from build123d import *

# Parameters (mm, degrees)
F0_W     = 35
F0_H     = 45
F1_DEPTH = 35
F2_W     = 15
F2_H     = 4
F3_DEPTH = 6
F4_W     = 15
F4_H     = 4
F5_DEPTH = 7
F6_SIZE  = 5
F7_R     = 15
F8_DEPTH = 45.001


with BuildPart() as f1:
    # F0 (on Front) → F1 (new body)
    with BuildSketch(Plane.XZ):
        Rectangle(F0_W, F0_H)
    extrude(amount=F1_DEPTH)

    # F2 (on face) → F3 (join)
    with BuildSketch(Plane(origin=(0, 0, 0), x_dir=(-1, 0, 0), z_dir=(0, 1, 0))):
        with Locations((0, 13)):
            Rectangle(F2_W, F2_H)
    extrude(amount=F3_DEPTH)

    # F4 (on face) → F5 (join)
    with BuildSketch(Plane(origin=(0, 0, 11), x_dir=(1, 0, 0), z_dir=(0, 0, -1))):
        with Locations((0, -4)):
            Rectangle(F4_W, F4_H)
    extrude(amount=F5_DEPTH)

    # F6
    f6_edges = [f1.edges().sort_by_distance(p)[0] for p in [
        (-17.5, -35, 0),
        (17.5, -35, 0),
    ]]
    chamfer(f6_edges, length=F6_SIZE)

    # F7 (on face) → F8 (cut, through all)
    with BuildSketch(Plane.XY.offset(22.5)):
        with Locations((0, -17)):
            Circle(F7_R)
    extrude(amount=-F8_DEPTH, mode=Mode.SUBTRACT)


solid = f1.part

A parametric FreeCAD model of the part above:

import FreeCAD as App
import Part
import Sketcher

V = App.Vector


def edges_at(feature, points):
    """Names of the edges that pass closest to the given points."""
    edges = feature.Shape.Edges
    near = lambda p: min(range(len(edges)), key=lambda i: edges[i].distToShape(Part.Vertex(*p))[0])
    return sorted({f"Edge{near(p) + 1}" for p in points})

doc = App.newDocument("Part")
body = doc.addObject("PartDesign::Body", "Body")

# Sketch on XZ plane
sketch1 = body.newObject("Sketcher::SketchObject", "Sketch")
sketch1.AttachmentSupport = (doc.getObject("XZ_Plane"), [""])
sketch1.MapMode = "FlatFace"
sketch1.addGeometry([
    Part.LineSegment(V(-18, 22, 0), V(-18, -22, 0)),
    Part.LineSegment(V(-18, -22, 0), V(18, -22, 0)),
    Part.LineSegment(V(18, -22, 0), V(18, 22, 0)),
    Part.LineSegment(V(18, 22, 0), V(-18, 22, 0)),
], False)
sketch1.addConstraint([
    Sketcher.Constraint("Coincident", 0, 2, 1, 1),
    Sketcher.Constraint("Coincident", 1, 2, 2, 1),
    Sketcher.Constraint("Coincident", 2, 2, 3, 1),
    Sketcher.Constraint("Coincident", 3, 2, 0, 1),
    Sketcher.Constraint("Vertical", 0),
    Sketcher.Constraint("Horizontal", 1),
    Sketcher.Constraint("Vertical", 2),
    Sketcher.Constraint("Horizontal", 3),
    Sketcher.Constraint("Symmetric", 0, 2, 2, 2, -1, 1),
    Sketcher.Constraint("DistanceX", 1, 1, 1, 2, 35.0),
    Sketcher.Constraint("DistanceY", 0, 2, 0, 1, 45.0),
])
pad1 = body.newObject("PartDesign::Pad", "Pad")
pad1.Profile = sketch1
pad1.Length = 35

# Sketch on XZ plane
sketch2 = body.newObject("Sketcher::SketchObject", "Sketch001")
sketch2.AttachmentSupport = (doc.getObject("XZ_Plane"), [""])
sketch2.MapMode = "FlatFace"
sketch2.addGeometry([
    Part.LineSegment(V(7.5, 15, 0), V(7.5, 11, 0)),
    Part.LineSegment(V(7.5, 11, 0), V(-7.5, 11, 0)),
    Part.LineSegment(V(-7.5, 11, 0), V(-7.5, 15, 0)),
    Part.LineSegment(V(-7.5, 15, 0), V(7.5, 15, 0)),
], False)
sketch2.addConstraint([
    Sketcher.Constraint("Coincident", 0, 2, 1, 1),
    Sketcher.Constraint("Coincident", 1, 2, 2, 1),
    Sketcher.Constraint("Coincident", 2, 2, 3, 1),
    Sketcher.Constraint("Coincident", 3, 2, 0, 1),
    Sketcher.Constraint("Vertical", 0),
    Sketcher.Constraint("Horizontal", 1),
    Sketcher.Constraint("Vertical", 2),
    Sketcher.Constraint("Horizontal", 3),
    Sketcher.Constraint("DistanceX", 1, 2, 1, 1, 15.0),
    Sketcher.Constraint("DistanceY", 0, 2, 0, 1, 4.0),
    Sketcher.Constraint("DistanceY", -1, 1, 0, 2, 11.0),
    Sketcher.Constraint("DistanceX", -1, 1, 0, 2, 7.5),
])
pad2 = body.newObject("PartDesign::Pad", "Pad001")
pad2.Profile = sketch2
pad2.Length = 6
pad2.Reversed = True

# Sketch on XY plane
sketch3 = body.newObject("Sketcher::SketchObject", "Sketch002")
sketch3.AttachmentSupport = (doc.getObject("XY_Plane"), [""])
sketch3.MapMode = "FlatFace"
sketch3.AttachmentOffset = App.Placement(V(0, 0, 11), App.Rotation())
sketch3.addGeometry([
    Part.LineSegment(V(-7.5, 2, 0), V(-7.5, 6, 0)),
    Part.LineSegment(V(-7.5, 6, 0), V(7.5, 6, 0)),
    Part.LineSegment(V(7.5, 6, 0), V(7.5, 2, 0)),
    Part.LineSegment(V(7.5, 2, 0), V(-7.5, 2, 0)),
], False)
sketch3.addConstraint([
    Sketcher.Constraint("Coincident", 0, 2, 1, 1),
    Sketcher.Constraint("Coincident", 1, 2, 2, 1),
    Sketcher.Constraint("Coincident", 2, 2, 3, 1),
    Sketcher.Constraint("Coincident", 3, 2, 0, 1),
    Sketcher.Constraint("Vertical", 0),
    Sketcher.Constraint("Horizontal", 1),
    Sketcher.Constraint("Vertical", 2),
    Sketcher.Constraint("Horizontal", 3),
    Sketcher.Constraint("DistanceX", 1, 1, 1, 2, 15.0),
    Sketcher.Constraint("DistanceY", 0, 1, 0, 2, 4.0),
    Sketcher.Constraint("DistanceY", -1, 1, 0, 2, 6.0),
    Sketcher.Constraint("DistanceX", 0, 2, -1, 1, 7.5),
])
pad3 = body.newObject("PartDesign::Pad", "Pad002")
pad3.Profile = sketch3
pad3.Length = 7
pad3.Reversed = True
doc.recompute()

chamfer = body.newObject("PartDesign::Chamfer", "Chamfer")
chamfer.Base = (pad3, edges_at(pad3, [(-17.5, -35, 0), (17.5, -35, 0)]))
chamfer.Size = 5

# Sketch on XY plane
sketch4 = body.newObject("Sketcher::SketchObject", "Sketch003")
sketch4.AttachmentSupport = (doc.getObject("XY_Plane"), [""])
sketch4.MapMode = "FlatFace"
sketch4.AttachmentOffset = App.Placement(V(0, 0, 22.5), App.Rotation())
sketch4.addGeometry(Part.Circle(V(0, -17, 0), V(0, 0, 1), 15), False)
sketch4.addConstraint([
    Sketcher.Constraint("PointOnObject", 0, 3, -2),
    Sketcher.Constraint("Diameter", 0, 30.0),
    Sketcher.Constraint("DistanceY", 0, 3, -1, 1, 17.0),
])
pocket1 = body.newObject("PartDesign::Pocket", "Pocket")
pocket1.Profile = sketch4
pocket1.Type = "ThroughAll"

doc.recompute()
